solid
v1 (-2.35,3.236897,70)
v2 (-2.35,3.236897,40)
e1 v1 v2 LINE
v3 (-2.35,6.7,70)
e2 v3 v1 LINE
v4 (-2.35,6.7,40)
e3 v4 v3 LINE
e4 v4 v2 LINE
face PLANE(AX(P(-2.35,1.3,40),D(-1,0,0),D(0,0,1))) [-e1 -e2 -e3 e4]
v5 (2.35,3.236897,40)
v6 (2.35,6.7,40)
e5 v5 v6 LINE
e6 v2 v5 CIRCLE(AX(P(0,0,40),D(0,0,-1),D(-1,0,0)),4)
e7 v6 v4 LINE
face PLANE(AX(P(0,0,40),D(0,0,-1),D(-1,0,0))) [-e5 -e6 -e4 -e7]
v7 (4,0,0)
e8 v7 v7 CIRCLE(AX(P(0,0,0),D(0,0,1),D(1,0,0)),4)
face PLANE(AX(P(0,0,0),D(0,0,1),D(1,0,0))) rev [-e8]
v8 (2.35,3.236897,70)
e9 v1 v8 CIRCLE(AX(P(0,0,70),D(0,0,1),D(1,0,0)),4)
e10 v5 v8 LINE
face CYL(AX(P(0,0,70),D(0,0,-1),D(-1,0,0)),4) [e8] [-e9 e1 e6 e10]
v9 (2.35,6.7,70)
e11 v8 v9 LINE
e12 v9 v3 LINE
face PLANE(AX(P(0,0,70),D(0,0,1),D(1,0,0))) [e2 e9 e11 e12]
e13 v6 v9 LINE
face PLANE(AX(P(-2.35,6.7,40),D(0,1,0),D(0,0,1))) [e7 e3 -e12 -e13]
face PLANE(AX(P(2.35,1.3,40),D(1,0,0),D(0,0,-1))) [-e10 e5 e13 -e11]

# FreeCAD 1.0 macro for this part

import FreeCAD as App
import Part
import Sketcher
Q = App.Units.Quantity

doc = App.newDocument("Part")
body = doc.addObject("PartDesign::Body", "Body")

# Sketch on XY plane
sketch1 = body.newObject("Sketcher::SketchObject", "Sketch")
sketch1.AttachmentSupport = (doc.getObject("XY_Plane"), [""])
sketch1.MapMode = "FlatFace"
sketch1.addGeometry(Part.Circle(App.Vector(0, 0, 0), App.Vector(0, 0, 1), 4), False)
sketch1.addConstraint([
    Sketcher.Constraint("Coincident", 0, 3, -1, 1),
    Sketcher.Constraint("Diameter", 0, Q("8 mm")),
])
pad1 = body.newObject("PartDesign::Pad", "Pad")
pad1.Profile = sketch1
pad1.Length = 70

# Sketch on XY plane
sketch2 = body.newObject("Sketcher::SketchObject", "Sketch001")
sketch2.AttachmentSupport = (doc.getObject("XY_Plane"), [""])
sketch2.MapMode = "FlatFace"
sketch2.AttachmentOffset = App.Placement(App.Vector(0, 0, 70), App.Rotation())
sketch2.addGeometry([
    Part.LineSegment(App.Vector(-2.35, 6.7, 0), App.Vector(-2.35, 1.3, 0)),
    Part.LineSegment(App.Vector(-2.35, 1.3, 0), App.Vector(2.35, 1.3, 0)),
    Part.LineSegment(App.Vector(2.35, 1.3, 0), App.Vector(2.35, 6.7, 0)),
    Part.LineSegment(App.Vector(2.35, 6.7, 0), App.Vector(-2.35, 6.7, 0)),
], False)
sketch2.addConstraint([
    Sketcher.Constraint("Coincident", 0, 2, 1, 1),
    Sketcher.Constraint("Coincident", 1, 2, 2, 1),
    Sketcher.Constraint("Coincident", 2, 2, 3, 1),
    Sketcher.Constraint("Coincident", 3, 2, 0, 1),
    Sketcher.Constraint("Vertical", 0),
    Sketcher.Constraint("Horizontal", 1),
    Sketcher.Constraint("Vertical", 2),
    Sketcher.Constraint("Horizontal", 3),
    Sketcher.Constraint("DistanceX", 1, 1, 1, 2, Q("4.7 mm")),
    Sketcher.Constraint("DistanceY", 0, 2, 0, 1, Q("5.4 mm")),
    Sketcher.Constraint("DistanceY", -1, 1, 0, 2, Q("1.3 mm")),
    Sketcher.Constraint("DistanceX", 0, 2, -1, 1, Q("2.35 mm")),
])
pad2 = body.newObject("PartDesign::Pad", "Pad001")
pad2.Profile = sketch2
pad2.Length = 30
pad2.Reversed = True

doc.recompute()
